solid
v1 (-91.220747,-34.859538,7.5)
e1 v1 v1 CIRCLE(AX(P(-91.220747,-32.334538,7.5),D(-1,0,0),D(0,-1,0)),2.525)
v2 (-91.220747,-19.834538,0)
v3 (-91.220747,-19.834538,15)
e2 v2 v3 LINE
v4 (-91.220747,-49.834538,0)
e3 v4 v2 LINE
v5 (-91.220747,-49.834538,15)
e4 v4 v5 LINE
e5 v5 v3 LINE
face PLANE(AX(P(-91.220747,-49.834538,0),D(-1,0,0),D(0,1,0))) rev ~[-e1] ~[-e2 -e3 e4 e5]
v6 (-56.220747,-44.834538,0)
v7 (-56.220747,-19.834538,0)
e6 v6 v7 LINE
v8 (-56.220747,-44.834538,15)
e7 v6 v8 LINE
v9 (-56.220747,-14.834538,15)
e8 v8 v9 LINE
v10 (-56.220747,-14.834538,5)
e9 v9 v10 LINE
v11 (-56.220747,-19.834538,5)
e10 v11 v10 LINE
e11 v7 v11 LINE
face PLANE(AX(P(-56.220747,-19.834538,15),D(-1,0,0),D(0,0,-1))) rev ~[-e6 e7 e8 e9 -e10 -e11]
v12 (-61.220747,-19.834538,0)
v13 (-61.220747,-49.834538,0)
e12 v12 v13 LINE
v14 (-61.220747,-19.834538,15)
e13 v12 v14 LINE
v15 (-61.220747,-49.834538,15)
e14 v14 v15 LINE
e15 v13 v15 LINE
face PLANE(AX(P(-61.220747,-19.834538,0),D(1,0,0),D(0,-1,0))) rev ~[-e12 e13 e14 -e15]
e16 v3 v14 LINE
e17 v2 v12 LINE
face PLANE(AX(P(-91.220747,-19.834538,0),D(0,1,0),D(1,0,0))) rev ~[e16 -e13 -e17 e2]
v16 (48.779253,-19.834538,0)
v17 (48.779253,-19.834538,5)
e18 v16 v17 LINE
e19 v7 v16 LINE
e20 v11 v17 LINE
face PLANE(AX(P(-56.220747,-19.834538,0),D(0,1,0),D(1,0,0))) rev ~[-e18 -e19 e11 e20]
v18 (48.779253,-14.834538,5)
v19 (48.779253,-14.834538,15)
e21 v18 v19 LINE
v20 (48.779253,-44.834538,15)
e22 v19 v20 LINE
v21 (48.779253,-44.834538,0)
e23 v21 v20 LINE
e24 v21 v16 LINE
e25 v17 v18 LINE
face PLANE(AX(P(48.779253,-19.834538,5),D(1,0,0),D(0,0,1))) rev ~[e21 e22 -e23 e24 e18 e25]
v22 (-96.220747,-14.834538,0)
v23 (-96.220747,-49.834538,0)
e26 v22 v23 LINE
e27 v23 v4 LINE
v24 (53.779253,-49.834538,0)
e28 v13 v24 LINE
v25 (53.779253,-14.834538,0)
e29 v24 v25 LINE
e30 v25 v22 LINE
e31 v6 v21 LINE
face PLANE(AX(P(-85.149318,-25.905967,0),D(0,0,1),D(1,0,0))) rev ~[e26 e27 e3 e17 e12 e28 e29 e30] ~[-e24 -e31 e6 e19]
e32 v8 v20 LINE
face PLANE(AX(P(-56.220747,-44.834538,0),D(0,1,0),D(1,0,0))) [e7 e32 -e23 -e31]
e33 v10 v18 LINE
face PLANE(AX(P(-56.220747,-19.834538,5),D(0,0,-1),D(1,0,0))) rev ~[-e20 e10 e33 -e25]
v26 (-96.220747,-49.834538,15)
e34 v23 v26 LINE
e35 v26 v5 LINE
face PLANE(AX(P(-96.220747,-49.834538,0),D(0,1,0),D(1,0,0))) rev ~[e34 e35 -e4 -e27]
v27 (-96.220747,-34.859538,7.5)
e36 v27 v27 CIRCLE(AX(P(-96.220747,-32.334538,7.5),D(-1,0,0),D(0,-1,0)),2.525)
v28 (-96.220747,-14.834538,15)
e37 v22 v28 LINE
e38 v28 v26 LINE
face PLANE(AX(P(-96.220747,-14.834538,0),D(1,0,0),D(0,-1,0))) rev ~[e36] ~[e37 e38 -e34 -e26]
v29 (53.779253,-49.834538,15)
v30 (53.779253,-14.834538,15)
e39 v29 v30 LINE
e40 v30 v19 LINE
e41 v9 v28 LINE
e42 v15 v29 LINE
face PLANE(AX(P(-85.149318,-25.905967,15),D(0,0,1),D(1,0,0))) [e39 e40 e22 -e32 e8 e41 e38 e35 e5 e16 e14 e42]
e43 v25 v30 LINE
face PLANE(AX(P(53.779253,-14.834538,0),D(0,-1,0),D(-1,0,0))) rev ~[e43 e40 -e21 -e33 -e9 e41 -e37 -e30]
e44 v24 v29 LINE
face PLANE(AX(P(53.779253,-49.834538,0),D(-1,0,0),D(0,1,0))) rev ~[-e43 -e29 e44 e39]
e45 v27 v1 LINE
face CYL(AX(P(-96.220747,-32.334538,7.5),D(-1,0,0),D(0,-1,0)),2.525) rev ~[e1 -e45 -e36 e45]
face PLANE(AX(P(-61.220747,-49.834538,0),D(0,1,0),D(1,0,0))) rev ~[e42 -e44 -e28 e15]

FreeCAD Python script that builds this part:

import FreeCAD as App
import Part
import Sketcher

doc = App.newDocument("Part")
body = doc.addObject("PartDesign::Body", "Body")

# Sketch on XY plane
sketch1 = body.newObject("Sketcher::SketchObject", "Sketch")
sketch1.AttachmentSupport = (doc.getObject("XY_Plane"), [""])
sketch1.MapMode = "FlatFace"
sketch1.addGeometry([
    Part.LineSegment(App.Vector(-96, -15, 0), App.Vector(-96, -50, 0)),  # 0
    Part.LineSegment(App.Vector(-96, -50, 0), App.Vector(-91, -50, 0)),  # 1
    Part.LineSegment(App.Vector(-91, -50, 0), App.Vector(-91, -20, 0)),  # 2
    Part.LineSegment(App.Vector(-91, -20, 0), App.Vector(-61, -20, 0)),  # 3
    Part.LineSegment(App.Vector(-61, -20, 0), App.Vector(-61, -50, 0)),  # 4
    Part.LineSegment(App.Vector(-61, -50, 0), App.Vector(54, -50, 0)),  # 5
    Part.LineSegment(App.Vector(54, -50, 0), App.Vector(54, -15, 0)),  # 6
    Part.LineSegment(App.Vector(54, -15, 0), App.Vector(-96, -15, 0)),  # 7
    Part.LineSegment(App.Vector(49, -45, 0), App.Vector(-56, -45, 0)),  # 8
    Part.LineSegment(App.Vector(-56, -45, 0), App.Vector(-56, -20, 0)),  # 9
    Part.LineSegment(App.Vector(-56, -20, 0), App.Vector(49, -20, 0)),  # 10
    Part.LineSegment(App.Vector(49, -20, 0), App.Vector(49, -45, 0)),  # 11
], False)
sketch1.addConstraint([
    Sketcher.Constraint("Coincident", 0, 2, 1, 1),
    Sketcher.Constraint("Coincident", 1, 2, 2, 1),
    Sketcher.Constraint("Coincident", 2, 2, 3, 1),
    Sketcher.Constraint("Coincident", 3, 2, 4, 1),
    Sketcher.Constraint("Coincident", 4, 2, 5, 1),
    Sketcher.Constraint("Coincident", 5, 2, 6, 1),
    Sketcher.Constraint("Coincident", 6, 2, 7, 1),
    Sketcher.Constraint("Coincident", 7, 2, 0, 1),
    Sketcher.Constraint("Coincident", 8, 2, 9, 1),
    Sketcher.Constraint("Coincident", 9, 2, 10, 1),
    Sketcher.Constraint("Coincident", 10, 2, 11, 1),
    Sketcher.Constraint("Coincident", 11, 2, 8, 1),
    Sketcher.Constraint("Vertical", 0),
    Sketcher.Constraint("Horizontal", 1),
    Sketcher.Constraint("Vertical", 2),
    Sketcher.Constraint("Horizontal", 3),
    Sketcher.Constraint("Vertical", 4),
    Sketcher.Constraint("Horizontal", 5),
    Sketcher.Constraint("Vertical", 6),
    Sketcher.Constraint("Horizontal", 7),
    Sketcher.Constraint("Horizontal", 8),
    Sketcher.Constraint("Vertical", 9),
    Sketcher.Constraint("Horizontal", 10),
    Sketcher.Constraint("Vertical", 11),
    Sketcher.Constraint("Horizontal", 1, 2, 4, 2),
    Sketcher.Constraint("Horizontal", 3, 2, 9, 2),
    Sketcher.Constraint("Equal", 3, 2),
    Sketcher.Constraint("DistanceX", 1, 1, 1, 2, 5.0),
    Sketcher.Constraint("DistanceX", 3, 1, 3, 2, 30.0),
    Sketcher.Constraint("DistanceX", 5, 1, 5, 2, 115.0),
    Sketcher.Constraint("DistanceX", 8, 2, 8, 1, 105.0),
    Sketcher.Constraint("DistanceY", 0, 2, 0, 1, 35.0),
    Sketcher.Constraint("DistanceY", 9, 1, 9, 2, 25.0),
    Sketcher.Constraint("DistanceX", 4, 2, 8, 2, 5.0),
    Sketcher.Constraint("DistanceY", 0, 2, -1, 1, 49.834538),
    Sketcher.Constraint("DistanceX", 0, 2, -1, 1, 96.220747),
])
pad1 = body.newObject("PartDesign::Pad", "Pad")
pad1.Profile = sketch1
pad1.Length = 15

# Sketch on YZ plane
sketch2 = body.newObject("Sketcher::SketchObject", "Sketch001")
sketch2.AttachmentSupport = (doc.getObject("YZ_Plane"), [""])
sketch2.MapMode = "FlatFace"
sketch2.AttachmentOffset = App.Placement(App.Vector(0, 0, -96.220747), App.Rotation())
sketch2.addGeometry(Part.Circle(App.Vector(-32.3, 7.5, 0), App.Vector(0, 0, 1), 2.5), False)
sketch2.addConstraint([
    Sketcher.Constraint("Diameter", 0, 5.05),
    Sketcher.Constraint("DistanceY", -1, 1, 0, 3, 7.5),
    Sketcher.Constraint("DistanceX", 0, 3, -1, 1, 32.334538),
])
pocket1 = body.newObject("PartDesign::Pocket", "Pocket")
pocket1.Profile = sketch2
pocket1.Length = 25
pocket1.Reversed = True

# Sketch on XZ plane
sketch3 = body.newObject("Sketcher::SketchObject", "Sketch002")
sketch3.AttachmentSupport = (doc.getObject("XZ_Plane"), [""])
sketch3.MapMode = "FlatFace"
sketch3.AttachmentOffset = App.Placement(App.Vector(0, 0, 19.834538), App.Rotation())
sketch3.addGeometry([
    Part.LineSegment(App.Vector(-56, 15, 0), App.Vector(-56, 5, 0)),
    Part.LineSegment(App.Vector(-56, 5, 0), App.Vector(49, 5, 0)),
    Part.LineSegment(App.Vector(49, 5, 0), App.Vector(49, 15, 0)),
    Part.LineSegment(App.Vector(49, 15, 0), App.Vector(-56, 15, 0)),
], False)
sketch3.addConstraint([
    Sketcher.Constraint("Coincident", 0, 2, 1, 1),
    Sketcher.Constraint("Coincident", 1, 2, 2, 1),
    Sketcher.Constraint("Coincident", 2, 2, 3, 1),
    Sketcher.Constraint("Coincident", 3, 2, 0, 1),
    Sketcher.Constraint("Vertical", 0),
    Sketcher.Constraint("Horizontal", 1),
    Sketcher.Constraint("Vertical", 2),
    Sketcher.Constraint("Horizontal", 3),
    Sketcher.Constraint("DistanceX", 1, 1, 1, 2, 105.0),
    Sketcher.Constraint("DistanceY", 0, 2, 0, 1, 10.0),
    Sketcher.Constraint("DistanceY", -1, 1, 0, 2, 5.0),
    Sketcher.Constraint("DistanceX", 0, 2, -1, 1, 56.220747),
])
pocket2 = body.newObject("PartDesign::Pocket", "Pocket001")
pocket2.Profile = sketch3
pocket2.Length = 25

doc.recompute()
